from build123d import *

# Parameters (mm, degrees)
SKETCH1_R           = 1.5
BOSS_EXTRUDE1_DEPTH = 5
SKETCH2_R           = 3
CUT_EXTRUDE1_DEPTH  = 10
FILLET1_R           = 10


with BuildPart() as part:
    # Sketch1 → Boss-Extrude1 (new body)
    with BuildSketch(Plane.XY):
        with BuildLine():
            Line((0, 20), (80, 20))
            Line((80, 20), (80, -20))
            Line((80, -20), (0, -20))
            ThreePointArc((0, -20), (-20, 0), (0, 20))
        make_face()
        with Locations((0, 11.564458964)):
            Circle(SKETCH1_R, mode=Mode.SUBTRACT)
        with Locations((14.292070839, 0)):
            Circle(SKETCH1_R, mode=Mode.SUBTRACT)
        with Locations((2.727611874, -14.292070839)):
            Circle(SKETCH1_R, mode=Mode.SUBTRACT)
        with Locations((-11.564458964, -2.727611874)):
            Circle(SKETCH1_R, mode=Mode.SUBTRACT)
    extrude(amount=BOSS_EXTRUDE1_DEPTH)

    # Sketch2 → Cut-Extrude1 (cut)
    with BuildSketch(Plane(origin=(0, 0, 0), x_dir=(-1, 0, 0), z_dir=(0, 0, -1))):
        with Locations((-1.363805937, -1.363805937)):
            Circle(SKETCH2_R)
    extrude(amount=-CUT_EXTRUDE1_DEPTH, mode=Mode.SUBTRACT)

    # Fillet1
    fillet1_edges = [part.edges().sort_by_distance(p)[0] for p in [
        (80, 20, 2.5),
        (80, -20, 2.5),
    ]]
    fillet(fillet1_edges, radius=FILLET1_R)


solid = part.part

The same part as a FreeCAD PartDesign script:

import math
import FreeCAD as App
import Part
import Sketcher
Q = App.Units.Quantity


def edges_at(feature, points):
    """Names of the edges that pass closest to the given points."""
    edges = feature.Shape.Edges
    near = lambda p: min(range(len(edges)), key=lambda i: edges[i].distToShape(Part.Vertex(*p))[0])
    return sorted({f"Edge{near(p) + 1}" for p in points})

doc = App.newDocument("Part")
body = doc.addObject("PartDesign::Body", "Body")

# Sketch on XY plane
sketch1 = body.newObject("Sketcher::SketchObject", "Sketch")
sketch1.AttachmentSupport = (doc.getObject("XY_Plane"), [""])
sketch1.MapMode = "FlatFace"
sketch1.addGeometry([
    Part.LineSegment(App.Vector(80, 20, 0), App.Vector(0, 20, 0)),  # 0
    Part.ArcOfCircle(Part.Circle(App.Vector(0, 0, 0), App.Vector(0, 0, 1), 20), math.radians(90), math.radians(270)),  # 1
    Part.LineSegment(App.Vector(0, -20, 0), App.Vector(80, -20, 0)),  # 2
    Part.LineSegment(App.Vector(80, -20, 0), App.Vector(80, 20, 0)),  # 3
    Part.Circle(App.Vector(2.727612, -14.292071, 0), App.Vector(0, 0, 1), 1.5),  # 4
    Part.Circle(App.Vector(-11.564459, -2.727612, 0), App.Vector(0, 0, 1), 1.5),  # 5
    Part.Circle(App.Vector(14.292071, 0, 0), App.Vector(0, 0, 1), 1.5),  # 6
    Part.Circle(App.Vector(0, 11.564459, 0), App.Vector(0, 0, 1), 1.5),  # 7
], False)
sketch1.addConstraint([
    Sketcher.Constraint("Tangent", 0, 2, 1, 1),
    Sketcher.Constraint("Tangent", 1, 2, 2, 1),
    Sketcher.Constraint("Coincident", 2, 2, 3, 1),
    Sketcher.Constraint("Coincident", 3, 2, 0, 1),
    Sketcher.Constraint("Horizontal", 0),
    Sketcher.Constraint("Horizontal", 2),
    Sketcher.Constraint("Vertical", 3),
    Sketcher.Constraint("Coincident", 1, 3, -1, 1),
    Sketcher.Constraint("Equal", 4, 5),
    Sketcher.Constraint("Equal", 5, 6),
    Sketcher.Constraint("Equal", 6, 7),
    Sketcher.Constraint("PointOnObject", 6, 3, -1),
    Sketcher.Constraint("PointOnObject", 7, 3, -2),
    Sketcher.Constraint("Diameter", 4, Q("3 mm")),
    Sketcher.Constraint("Radius", 1, Q("20 mm")),
    Sketcher.Constraint("DistanceX", 0, 2, 0, 1, Q("80 mm")),
    Sketcher.Constraint("DistanceX", -1, 1, 4, 3, Q("2.727612 mm")),
    Sketcher.Constraint("DistanceY", 4, 3, -1, 1, Q("14.292071 mm")),
    Sketcher.Constraint("DistanceX", 5, 3, -1, 1, Q("11.564459 mm")),
    Sketcher.Constraint("DistanceY", 5, 3, -1, 1, Q("2.727612 mm")),
    Sketcher.Constraint("DistanceX", -1, 1, 6, 3, Q("14.292071 mm")),
    Sketcher.Constraint("DistanceY", -1, 1, 7, 3, Q("11.564459 mm")),
])
pad1 = body.newObject("PartDesign::Pad", "Pad")
pad1.Profile = sketch1
pad1.Length = 5

# Sketch on XY plane
sketch2 = body.newObject("Sketcher::SketchObject", "Sketch001")
sketch2.AttachmentSupport = (doc.getObject("XY_Plane"), [""])
sketch2.MapMode = "FlatFace"
sketch2.addGeometry(Part.Circle(App.Vector(1.363806, -1.363806, 0), App.Vector(0, 0, 1), 3), False)
sketch2.addConstraint([
    Sketcher.Constraint("Diameter", 0, Q("6 mm")),
    Sketcher.Constraint("DistanceX", -1, 1, 0, 3, Q("1.363806 mm")),
    Sketcher.Constraint("DistanceY", 0, 3, -1, 1, Q("1.363806 mm")),
])
pocket1 = body.newObject("PartDesign::Pocket", "Pocket")
pocket1.Profile = sketch2
pocket1.Length = 10
pocket1.Reversed = True
doc.recompute()

fillet = body.newObject("PartDesign::Fillet", "Fillet")
fillet.Base = (pocket1, edges_at(pocket1, [(80, 20, 2.5), (80, -20, 2.5)]))
fillet.Radius = 10

doc.recompute()
